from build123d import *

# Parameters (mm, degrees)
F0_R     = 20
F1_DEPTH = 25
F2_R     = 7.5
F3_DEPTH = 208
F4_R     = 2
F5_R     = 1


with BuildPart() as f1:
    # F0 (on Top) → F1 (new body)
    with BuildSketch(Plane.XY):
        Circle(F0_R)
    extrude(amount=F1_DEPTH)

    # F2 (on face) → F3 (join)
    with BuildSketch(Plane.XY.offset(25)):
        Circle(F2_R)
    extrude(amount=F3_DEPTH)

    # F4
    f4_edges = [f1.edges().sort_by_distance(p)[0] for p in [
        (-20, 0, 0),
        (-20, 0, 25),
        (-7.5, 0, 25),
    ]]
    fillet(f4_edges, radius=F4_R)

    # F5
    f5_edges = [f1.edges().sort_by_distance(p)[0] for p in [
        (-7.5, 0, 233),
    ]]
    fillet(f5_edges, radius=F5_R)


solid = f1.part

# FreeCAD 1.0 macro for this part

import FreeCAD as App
import Part
import Sketcher


def edges_at(feature, points):
    """Names of the edges that pass closest to the given points."""
    edges = feature.Shape.Edges
    near = lambda p: min(range(len(edges)), key=lambda i: edges[i].distToShape(Part.Vertex(*p))[0])
    return sorted({f"Edge{near(p) + 1}" for p in points})

doc = App.newDocument("Part")
body = doc.addObject("PartDesign::Body", "Body")

# Sketch on XY plane
sketch1 = body.newObject("Sketcher::SketchObject", "Sketch")
sketch1.AttachmentSupport = (doc.getObject("XY_Plane"), [""])
sketch1.MapMode = "FlatFace"
sketch1.addGeometry(Part.Circle(App.Vector(0, 0, 0), App.Vector(0, 0, 1), 20), False)
sketch1.addConstraint(Sketcher.Constraint("Coincident", 0, 3, -1, 1))
sketch1.addConstraint(Sketcher.Constraint("Diameter", 0, 40.0))
pad1 = body.newObject("PartDesign::Pad", "Pad")
pad1.Profile = sketch1
pad1.Length = 25

# Sketch on XY plane
sketch2 = body.newObject("Sketcher::SketchObject", "Sketch001")
sketch2.AttachmentSupport = (doc.getObject("XY_Plane"), [""])
sketch2.MapMode = "FlatFace"
sketch2.AttachmentOffset = App.Placement(App.Vector(0, 0, 25), App.Rotation())
sketch2.addGeometry(Part.Circle(App.Vector(0, 0, 0), App.Vector(0, 0, 1), 7.5), False)
sketch2.addConstraint(Sketcher.Constraint("Coincident", 0, 3, -1, 1))
sketch2.addConstraint(Sketcher.Constraint("Diameter", 0, 15.0))
pad2 = body.newObject("PartDesign::Pad", "Pad001")
pad2.Profile = sketch2
pad2.Length = 208
doc.recompute()

fillet = body.newObject("PartDesign::Fillet", "Fillet")
fillet.Base = (pad2, edges_at(pad2, [(-20, 0, 0), (-20, 0, 25), (-7.5, 0, 25)]))
fillet.Radius = 2
doc.recompute()

fillet2 = body.newObject("PartDesign::Fillet", "Fillet001")
fillet2.Base = (fillet, edges_at(fillet, [(-7.5, 0, 233)]))
fillet2.Radius = 1

doc.recompute()
